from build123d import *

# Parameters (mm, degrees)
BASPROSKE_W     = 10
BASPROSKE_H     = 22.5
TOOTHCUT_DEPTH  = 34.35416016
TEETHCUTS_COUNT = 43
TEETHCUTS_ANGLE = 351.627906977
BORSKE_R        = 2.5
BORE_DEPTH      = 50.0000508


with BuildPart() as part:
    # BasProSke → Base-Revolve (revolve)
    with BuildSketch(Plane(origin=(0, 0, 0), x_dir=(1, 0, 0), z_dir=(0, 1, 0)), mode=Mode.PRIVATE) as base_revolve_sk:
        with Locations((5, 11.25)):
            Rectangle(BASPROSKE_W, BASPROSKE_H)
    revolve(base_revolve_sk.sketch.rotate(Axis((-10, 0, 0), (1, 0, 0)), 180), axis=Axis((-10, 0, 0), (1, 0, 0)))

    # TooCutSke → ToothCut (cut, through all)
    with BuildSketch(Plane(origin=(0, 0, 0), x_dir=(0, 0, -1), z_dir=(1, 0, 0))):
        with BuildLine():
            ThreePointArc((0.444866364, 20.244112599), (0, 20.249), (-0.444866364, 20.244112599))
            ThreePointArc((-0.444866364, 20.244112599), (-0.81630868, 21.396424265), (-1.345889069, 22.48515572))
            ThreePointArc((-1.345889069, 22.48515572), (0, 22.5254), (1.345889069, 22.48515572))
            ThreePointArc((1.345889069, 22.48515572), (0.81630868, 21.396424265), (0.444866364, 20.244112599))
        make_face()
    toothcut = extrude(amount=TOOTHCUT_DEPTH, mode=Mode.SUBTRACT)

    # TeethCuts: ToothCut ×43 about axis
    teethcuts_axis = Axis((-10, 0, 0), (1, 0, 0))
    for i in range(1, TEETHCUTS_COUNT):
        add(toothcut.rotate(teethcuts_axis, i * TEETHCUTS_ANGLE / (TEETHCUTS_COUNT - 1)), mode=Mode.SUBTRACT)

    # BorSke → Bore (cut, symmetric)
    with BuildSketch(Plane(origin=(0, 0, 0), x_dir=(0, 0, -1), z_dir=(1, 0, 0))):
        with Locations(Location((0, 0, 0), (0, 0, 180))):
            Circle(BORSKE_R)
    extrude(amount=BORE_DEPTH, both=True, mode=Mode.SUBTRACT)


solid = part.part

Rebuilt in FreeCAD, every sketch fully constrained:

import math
import FreeCAD as App
import Part
import Sketcher
from FreeCAD import Vector
Q = App.Units.Quantity


def add_polygon(sketch, points):
    """Adds a closed chain of lines whose ends are joined by coincident constraints."""
    first, n = sketch.GeometryCount, len(points)
    for a, b in zip(points, points[1:] + points[:1]):
        sketch.addGeometry(Part.LineSegment(App.Vector(*a, 0), App.Vector(*b, 0)), False)
    for i in range(n):
        sketch.addConstraint(Sketcher.Constraint("Coincident", first + i, 2, first + (i + 1) % n, 1))

doc = App.newDocument("Part")
body = doc.addObject("PartDesign::Body", "Body")

# Sketch on XZ plane
sketch1 = doc.addObject("Sketcher::SketchObject", "Sketch")
body.addObject(sketch1)
sketch1.AttachmentSupport = (doc.XZ_Plane, [""])
sketch1.MapMode = "FlatFace"
add_polygon(sketch1, [(0, -22), (0, 0), (10, 0), (10, -22)])  # lines 0-3
sketch1.addConstraint([
    Sketcher.Constraint("Vertical", 0),
    Sketcher.Constraint("Horizontal", 1),
    Sketcher.Constraint("Vertical", 2),
    Sketcher.Constraint("Horizontal", 3),
    Sketcher.Constraint("Coincident", 0, 2, -1, 1),
    Sketcher.Constraint("DistanceX", 1, 1, 1, 2, Q("10 mm")),
    Sketcher.Constraint("DistanceY", 0, 1, 0, 2, Q("22.5 mm")),
])
revolution = doc.addObject("PartDesign::Revolution", "Revolution")
body.addObject(revolution)
revolution.Profile = sketch1
revolution.ReferenceAxis = (sketch1, ["H_Axis"])
revolution.Angle = 360

# Sketch on YZ plane
sketch2 = doc.addObject("Sketcher::SketchObject", "Sketch001")
body.addObject(sketch2)
sketch2.AttachmentSupport = (doc.YZ_Plane, [""])
sketch2.MapMode = "FlatFace"
sketch2.addGeometry([
    Part.ArcOfCircle(Part.Circle(Vector(0, 0, 0), Vector(0, 0, 1), 20.2), math.radians(-1.26), math.radians(1.26)),
    Part.ArcOfCircle(Part.Circle(Vector(18.2, -8.8, 0), Vector(0, 0, 1), 8.6), math.radians(60.02), math.radians(76.17)),
    Part.ArcOfCircle(Part.Circle(Vector(0, 0, 0), Vector(0, 0, 1), 22.5), math.radians(-3.43), math.radians(3.43)),
    Part.ArcOfCircle(Part.Circle(Vector(18.2, 8.8, 0), Vector(0, 0, 1), 8.6), math.radians(-76.17), math.radians(-60.02)),
], False)
sketch2.addConstraint([
    Sketcher.Constraint("Coincident", 0, 1, 1, 2),
    Sketcher.Constraint("Coincident", 1, 1, 2, 1),
    Sketcher.Constraint("Coincident", 2, 2, 3, 2),
    Sketcher.Constraint("Coincident", 3, 1, 0, 2),
    Sketcher.Constraint("Coincident", 0, 3, -1, 1),
    Sketcher.Constraint("Coincident", 2, 3, -1, 1),
    Sketcher.Constraint("Equal", 1, 3),
    Sketcher.Constraint("Symmetric", 1, 3, 3, 3, -1),
    Sketcher.Constraint("Radius", 1, Q("8.6 mm")),
    Sketcher.Constraint("Radius", 0, Q("20.249 mm")),
    Sketcher.Constraint("Radius", 2, Q("22.5254 mm")),
    Sketcher.Constraint("DistanceY", 1, 3, -1, 1, Q("8.795541 mm")),
    Sketcher.Constraint("DistanceY", 1, 1, -1, 1, Q("1.345889 mm")),
])
pocket1 = doc.addObject("PartDesign::Pocket", "Pocket")
body.addObject(pocket1)
pocket1.Profile = sketch2
pocket1.Type = "ThroughAll"
pocket1.Reversed = True
doc.recompute()

polarpattern = doc.addObject("PartDesign::PolarPattern", "PolarPattern")
body.addObject(polarpattern)
polarpattern.Originals = [pocket1]
polarpattern.Axis = (doc.X_Axis, [""])
polarpattern.Angle = 360
polarpattern.Occurrences = 43
body.Tip = polarpattern

# Sketch on YZ plane
sketch3 = doc.addObject("Sketcher::SketchObject", "Sketch002")
body.addObject(sketch3)
sketch3.AttachmentSupport = (doc.YZ_Plane, [""])
sketch3.MapMode = "FlatFace"
sketch3.addGeometry(Part.Circle(Vector(0, 0, 0), Vector(0, 0, 1), 2.5), False)
sketch3.addConstraint([
    Sketcher.Constraint("Coincident", 0, 3, -1, 1),
    Sketcher.Constraint("Diameter", 0, Q("5 mm")),
])
pocket2 = doc.addObject("PartDesign::Pocket", "Pocket001")
body.addObject(pocket2)
pocket2.Profile = sketch3
pocket2.Length = 100.000102
pocket2.Midplane = True

doc.recompute()
